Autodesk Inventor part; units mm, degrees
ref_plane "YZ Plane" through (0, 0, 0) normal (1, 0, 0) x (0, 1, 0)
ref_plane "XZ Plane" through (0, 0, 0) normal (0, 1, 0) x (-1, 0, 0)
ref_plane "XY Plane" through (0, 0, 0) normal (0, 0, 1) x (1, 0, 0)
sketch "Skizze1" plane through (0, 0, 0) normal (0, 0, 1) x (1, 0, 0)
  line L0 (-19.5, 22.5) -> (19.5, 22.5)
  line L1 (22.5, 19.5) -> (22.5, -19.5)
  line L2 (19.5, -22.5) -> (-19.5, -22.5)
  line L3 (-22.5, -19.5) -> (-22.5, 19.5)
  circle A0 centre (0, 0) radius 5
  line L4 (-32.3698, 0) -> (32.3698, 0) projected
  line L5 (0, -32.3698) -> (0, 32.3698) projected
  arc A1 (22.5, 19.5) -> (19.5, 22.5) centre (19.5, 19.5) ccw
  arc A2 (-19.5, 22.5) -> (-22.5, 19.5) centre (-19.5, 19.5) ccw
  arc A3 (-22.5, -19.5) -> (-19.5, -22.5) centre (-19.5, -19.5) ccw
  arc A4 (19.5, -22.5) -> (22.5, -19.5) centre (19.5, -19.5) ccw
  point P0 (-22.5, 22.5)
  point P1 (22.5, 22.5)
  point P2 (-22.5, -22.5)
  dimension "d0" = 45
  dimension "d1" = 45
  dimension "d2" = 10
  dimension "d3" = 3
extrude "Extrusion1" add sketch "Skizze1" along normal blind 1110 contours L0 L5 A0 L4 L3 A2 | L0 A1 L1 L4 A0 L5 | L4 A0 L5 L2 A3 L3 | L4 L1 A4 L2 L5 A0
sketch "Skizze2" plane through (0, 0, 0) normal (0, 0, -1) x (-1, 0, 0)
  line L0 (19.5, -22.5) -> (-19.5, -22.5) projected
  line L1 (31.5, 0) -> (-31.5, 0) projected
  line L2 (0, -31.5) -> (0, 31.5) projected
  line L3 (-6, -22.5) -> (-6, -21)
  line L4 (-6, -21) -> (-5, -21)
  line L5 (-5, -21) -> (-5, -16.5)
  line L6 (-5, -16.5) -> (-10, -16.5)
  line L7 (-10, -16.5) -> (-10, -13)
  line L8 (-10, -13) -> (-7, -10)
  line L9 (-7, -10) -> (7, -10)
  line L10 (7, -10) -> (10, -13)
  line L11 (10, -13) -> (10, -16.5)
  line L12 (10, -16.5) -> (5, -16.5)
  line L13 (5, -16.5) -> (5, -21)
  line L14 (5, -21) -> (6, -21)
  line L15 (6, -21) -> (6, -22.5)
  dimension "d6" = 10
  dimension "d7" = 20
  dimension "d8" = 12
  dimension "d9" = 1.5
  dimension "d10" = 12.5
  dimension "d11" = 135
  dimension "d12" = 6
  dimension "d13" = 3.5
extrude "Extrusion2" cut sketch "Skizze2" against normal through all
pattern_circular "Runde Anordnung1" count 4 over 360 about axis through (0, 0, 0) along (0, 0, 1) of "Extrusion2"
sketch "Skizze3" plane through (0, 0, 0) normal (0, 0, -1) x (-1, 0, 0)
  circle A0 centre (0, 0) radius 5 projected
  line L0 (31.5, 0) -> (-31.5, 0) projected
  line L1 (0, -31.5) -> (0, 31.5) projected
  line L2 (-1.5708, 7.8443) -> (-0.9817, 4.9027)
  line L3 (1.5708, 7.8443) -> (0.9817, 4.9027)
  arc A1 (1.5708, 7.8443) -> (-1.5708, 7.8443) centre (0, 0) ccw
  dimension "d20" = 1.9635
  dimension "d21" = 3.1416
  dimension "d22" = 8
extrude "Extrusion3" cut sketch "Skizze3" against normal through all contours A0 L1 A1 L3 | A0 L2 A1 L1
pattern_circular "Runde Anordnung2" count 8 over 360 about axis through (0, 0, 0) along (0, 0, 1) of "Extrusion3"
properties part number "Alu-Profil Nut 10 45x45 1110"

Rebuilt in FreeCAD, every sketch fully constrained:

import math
import FreeCAD as App
import Part
import Sketcher
from FreeCAD import Vector

doc = App.newDocument("Part")
body = doc.addObject("PartDesign::Body", "Body")

sketch1 = body.newObject("Sketcher::SketchObject", "Sketch")
sketch1.AttachmentSupport = (doc.getObject("XY_Plane"), [""])
sketch1.MapMode = "FlatFace"
sketch1.addGeometry(Part.ArcOfCircle(Part.Circle(Vector(-19.5, 19.5, 0), Vector(0, 0, 1), 3), math.radians(90), math.radians(180)), False)
sketch1.addGeometry(Part.LineSegment(Vector(-22.5, 19.5, 0), Vector(-22.5, -19.5, 0)), False)
sketch1.addGeometry(Part.ArcOfCircle(Part.Circle(Vector(-19.5, -19.5, 0), Vector(0, 0, 1), 3), math.radians(180), math.radians(270)), False)
sketch1.addGeometry(Part.LineSegment(Vector(-19.5, -22.5, 0), Vector(19.5, -22.5, 0)), False)
sketch1.addGeometry(Part.ArcOfCircle(Part.Circle(Vector(19.5, -19.5, 0), Vector(0, 0, 1), 3), math.radians(-90), math.radians(0)), False)
sketch1.addGeometry(Part.LineSegment(Vector(22.5, -19.5, 0), Vector(22.5, 19.5, 0)), False)
sketch1.addGeometry(Part.ArcOfCircle(Part.Circle(Vector(19.5, 19.5, 0), Vector(0, 0, 1), 3), math.radians(0), math.radians(90)), False)
sketch1.addGeometry(Part.LineSegment(Vector(19.5, 22.5, 0), Vector(-19.5, 22.5, 0)), False)
sketch1.addGeometry(Part.Circle(Vector(0, 0, 0), Vector(0, 0, 1), 5), False)
sketch1.addConstraint(Sketcher.Constraint("Tangent", 0, 2, 1, 1))
sketch1.addConstraint(Sketcher.Constraint("Tangent", 1, 2, 2, 1))
sketch1.addConstraint(Sketcher.Constraint("Tangent", 2, 2, 3, 1))
sketch1.addConstraint(Sketcher.Constraint("Tangent", 3, 2, 4, 1))
sketch1.addConstraint(Sketcher.Constraint("Tangent", 4, 2, 5, 1))
sketch1.addConstraint(Sketcher.Constraint("Tangent", 5, 2, 6, 1))
sketch1.addConstraint(Sketcher.Constraint("Tangent", 6, 2, 7, 1))
sketch1.addConstraint(Sketcher.Constraint("Tangent", 7, 2, 0, 1))
sketch1.addConstraint(Sketcher.Constraint("Vertical", 1))
sketch1.addConstraint(Sketcher.Constraint("Horizontal", 3))
sketch1.addConstraint(Sketcher.Constraint("Vertical", 5))
sketch1.addConstraint(Sketcher.Constraint("Horizontal", 7))
sketch1.addConstraint(Sketcher.Constraint("Coincident", 8, 3, -1, 1))
sketch1.addConstraint(Sketcher.Constraint("Equal", 0, 2))
sketch1.addConstraint(Sketcher.Constraint("Equal", 2, 4))
sketch1.addConstraint(Sketcher.Constraint("Equal", 4, 6))
sketch1.addConstraint(Sketcher.Constraint("Symmetric", 0, 3, 4, 3, -1, 1))
sketch1.addConstraint(Sketcher.Constraint("Equal", 7, 1))
sketch1.addConstraint(Sketcher.Constraint("Diameter", 8, 10.0))
sketch1.addConstraint(Sketcher.Constraint("Radius", 0, 3.0))
sketch1.addConstraint(Sketcher.Constraint("DistanceX", 3, 1, 3, 2, 39.0))
pad1 = body.newObject("PartDesign::Pad", "Pad")
pad1.Profile = sketch1
pad1.Length = 1110

sketch2 = body.newObject("Sketcher::SketchObject", "Sketch001")
sketch2.AttachmentSupport = (doc.getObject("XY_Plane"), [""])
sketch2.MapMode = "FlatFace"
sketch2.addGeometry(Part.LineSegment(Vector(-6, -22.5, 0), Vector(-6, -21, 0)), False)
sketch2.addGeometry(Part.LineSegment(Vector(-6, -21, 0), Vector(-5, -21, 0)), False)
sketch2.addGeometry(Part.LineSegment(Vector(-5, -21, 0), Vector(-5, -16.5, 0)), False)
sketch2.addGeometry(Part.LineSegment(Vector(-5, -16.5, 0), Vector(-10, -16.5, 0)), False)
sketch2.addGeometry(Part.LineSegment(Vector(-10, -16.5, 0), Vector(-10, -13, 0)), False)
sketch2.addGeometry(Part.LineSegment(Vector(-10, -13, 0), Vector(-7, -10, 0)), False)
sketch2.addGeometry(Part.LineSegment(Vector(-7, -10, 0), Vector(7, -10, 0)), False)
sketch2.addGeometry(Part.LineSegment(Vector(7, -10, 0), Vector(10, -13, 0)), False)
sketch2.addGeometry(Part.LineSegment(Vector(10, -13, 0), Vector(10, -16.5, 0)), False)
sketch2.addGeometry(Part.LineSegment(Vector(10, -16.5, 0), Vector(5, -16.5, 0)), False)
sketch2.addGeometry(Part.LineSegment(Vector(5, -16.5, 0), Vector(5, -21, 0)), False)
sketch2.addGeometry(Part.LineSegment(Vector(5, -21, 0), Vector(6, -21, 0)), False)
sketch2.addGeometry(Part.LineSegment(Vector(6, -21, 0), Vector(6, -22.5, 0)), False)
sketch2.addGeometry(Part.LineSegment(Vector(6, -22.5, 0), Vector(-6, -22.5, 0)), False)
sketch2.addConstraint(Sketcher.Constraint("Coincident", 0, 2, 1, 1))
sketch2.addConstraint(Sketcher.Constraint("Coincident", 1, 2, 2, 1))
sketch2.addConstraint(Sketcher.Constraint("Coincident", 2, 2, 3, 1))
sketch2.addConstraint(Sketcher.Constraint("Coincident", 3, 2, 4, 1))
sketch2.addConstraint(Sketcher.Constraint("Coincident", 4, 2, 5, 1))
sketch2.addConstraint(Sketcher.Constraint("Coincident", 5, 2, 6, 1))
sketch2.addConstraint(Sketcher.Constraint("Coincident", 6, 2, 7, 1))
sketch2.addConstraint(Sketcher.Constraint("Coincident", 7, 2, 8, 1))
sketch2.addConstraint(Sketcher.Constraint("Coincident", 8, 2, 9, 1))
sketch2.addConstraint(Sketcher.Constraint("Coincident", 9, 2, 10, 1))
sketch2.addConstraint(Sketcher.Constraint("Coincident", 10, 2, 11, 1))
sketch2.addConstraint(Sketcher.Constraint("Coincident", 11, 2, 12, 1))
sketch2.addConstraint(Sketcher.Constraint("Coincident", 12, 2, 13, 1))
sketch2.addConstraint(Sketcher.Constraint("Coincident", 13, 2, 0, 1))
sketch2.addConstraint(Sketcher.Constraint("Vertical", 0))
sketch2.addConstraint(Sketcher.Constraint("Horizontal", 1))
sketch2.addConstraint(Sketcher.Constraint("Vertical", 2))
sketch2.addConstraint(Sketcher.Constraint("Horizontal", 3))
sketch2.addConstraint(Sketcher.Constraint("Vertical", 4))
sketch2.addConstraint(Sketcher.Constraint("Horizontal", 6))
sketch2.addConstraint(Sketcher.Constraint("Vertical", 8))
sketch2.addConstraint(Sketcher.Constraint("Horizontal", 9))
sketch2.addConstraint(Sketcher.Constraint("Vertical", 10))
sketch2.addConstraint(Sketcher.Constraint("Horizontal", 11))
sketch2.addConstraint(Sketcher.Constraint("Vertical", 12))
sketch2.addConstraint(Sketcher.Constraint("Horizontal", 13))
sketch2.addConstraint(Sketcher.Constraint("Symmetric", 4, 2, 7, 2, -2))
sketch2.addConstraint(Sketcher.Constraint("Symmetric", 2, 2, 9, 2, -2))
sketch2.addConstraint(Sketcher.Constraint("Symmetric", 0, 2, 11, 2, -2))
sketch2.addConstraint(Sketcher.Constraint("Perpendicular", 5, 7))
sketch2.addConstraint(Sketcher.Constraint("Equal", 5, 7))
sketch2.addConstraint(Sketcher.Constraint("DistanceX", 13, 2, 13, 1, 12.0))
sketch2.addConstraint(Sketcher.Constraint("DistanceY", 0, 1, 0, 2, 1.5))
sketch2.addConstraint(Sketcher.Constraint("DistanceY", 4, 1, 4, 2, 3.5))
sketch2.addConstraint(Sketcher.Constraint("DistanceX", 3, 2, -1, 1, 10.0))
sketch2.addConstraint(Sketcher.Constraint("DistanceY", 5, 2, -1, 1, 10.0))
sketch2.addConstraint(Sketcher.Constraint("DistanceX", 2, 2, 6, 2, 12.0))
sketch2.addConstraint(Sketcher.Constraint("DistanceX", 2, 2, 9, 2, 10.0))
sketch2.addConstraint(Sketcher.Constraint("DistanceY", 12, 2, 9, 2, 6.0))
pocket1 = body.newObject("PartDesign::Pocket", "Pocket")
pocket1.Profile = sketch2
pocket1.Type = "ThroughAll"
pocket1.Reversed = True
doc.recompute()

polarpattern = body.newObject("PartDesign::PolarPattern", "PolarPattern")
polarpattern.Originals = [pocket1]
polarpattern.Axis = (doc.getObject("Z_Axis"), [""])
polarpattern.Angle = 360
polarpattern.Occurrences = 4
body.Tip = polarpattern

sketch3 = body.newObject("Sketcher::SketchObject", "Sketch002")
sketch3.AttachmentSupport = (doc.getObject("XY_Plane"), [""])
sketch3.MapMode = "FlatFace"
sketch3.addGeometry(Part.LineSegment(Vector(-0.9817, 4.9027, 0), Vector(-1.5708, 7.8443, 0)), False)
sketch3.addGeometry(Part.ArcOfCircle(Part.Circle(Vector(0, 0, 0), Vector(0, 0, 1), 8.000028), math.radians(78.676443), math.radians(101.323557)), False)
sketch3.addGeometry(Part.LineSegment(Vector(1.5708, 7.8443, 0), Vector(0.9817, 4.9027, 0)), False)
sketch3.addGeometry(Part.ArcOfCircle(Part.Circle(Vector(0, 0, 0), Vector(0, 0, 1), 5), math.radians(78.677033), math.radians(101.322967)), False)
sketch3.addConstraint(Sketcher.Constraint("Coincident", 0, 2, 1, 2))
sketch3.addConstraint(Sketcher.Constraint("Coincident", 1, 1, 2, 1))
sketch3.addConstraint(Sketcher.Constraint("Coincident", 2, 2, 3, 1))
sketch3.addConstraint(Sketcher.Constraint("Coincident", 3, 2, 0, 1))
sketch3.addConstraint(Sketcher.Constraint("Coincident", 1, 3, -1, 1))
sketch3.addConstraint(Sketcher.Constraint("Coincident", 3, 3, -1, 1))
sketch3.addConstraint(Sketcher.Constraint("Horizontal", 0, 2, 1, 1))
sketch3.addConstraint(Sketcher.Constraint("Horizontal", 2, 2, 3, 2))
sketch3.addConstraint(Sketcher.Constraint("Radius", 1, 8.0))
sketch3.addConstraint(Sketcher.Constraint("Radius", 3, 5.0))
sketch3.addConstraint(Sketcher.Constraint("DistanceX", 0, 2, 1, 1, 3.1416))
sketch3.addConstraint(Sketcher.Constraint("DistanceX", 3, 2, 2, 2, 1.9634))
pocket2 = body.newObject("PartDesign::Pocket", "Pocket001")
pocket2.Profile = sketch3
pocket2.Type = "ThroughAll"
pocket2.Reversed = True
doc.recompute()

polarpattern2 = body.newObject("PartDesign::PolarPattern", "PolarPattern001")
polarpattern2.Originals = [pocket2]
polarpattern2.Axis = (doc.getObject("Z_Axis"), [""])
polarpattern2.Angle = 360
polarpattern2.Occurrences = 8
body.Tip = polarpattern2

doc.recompute()
